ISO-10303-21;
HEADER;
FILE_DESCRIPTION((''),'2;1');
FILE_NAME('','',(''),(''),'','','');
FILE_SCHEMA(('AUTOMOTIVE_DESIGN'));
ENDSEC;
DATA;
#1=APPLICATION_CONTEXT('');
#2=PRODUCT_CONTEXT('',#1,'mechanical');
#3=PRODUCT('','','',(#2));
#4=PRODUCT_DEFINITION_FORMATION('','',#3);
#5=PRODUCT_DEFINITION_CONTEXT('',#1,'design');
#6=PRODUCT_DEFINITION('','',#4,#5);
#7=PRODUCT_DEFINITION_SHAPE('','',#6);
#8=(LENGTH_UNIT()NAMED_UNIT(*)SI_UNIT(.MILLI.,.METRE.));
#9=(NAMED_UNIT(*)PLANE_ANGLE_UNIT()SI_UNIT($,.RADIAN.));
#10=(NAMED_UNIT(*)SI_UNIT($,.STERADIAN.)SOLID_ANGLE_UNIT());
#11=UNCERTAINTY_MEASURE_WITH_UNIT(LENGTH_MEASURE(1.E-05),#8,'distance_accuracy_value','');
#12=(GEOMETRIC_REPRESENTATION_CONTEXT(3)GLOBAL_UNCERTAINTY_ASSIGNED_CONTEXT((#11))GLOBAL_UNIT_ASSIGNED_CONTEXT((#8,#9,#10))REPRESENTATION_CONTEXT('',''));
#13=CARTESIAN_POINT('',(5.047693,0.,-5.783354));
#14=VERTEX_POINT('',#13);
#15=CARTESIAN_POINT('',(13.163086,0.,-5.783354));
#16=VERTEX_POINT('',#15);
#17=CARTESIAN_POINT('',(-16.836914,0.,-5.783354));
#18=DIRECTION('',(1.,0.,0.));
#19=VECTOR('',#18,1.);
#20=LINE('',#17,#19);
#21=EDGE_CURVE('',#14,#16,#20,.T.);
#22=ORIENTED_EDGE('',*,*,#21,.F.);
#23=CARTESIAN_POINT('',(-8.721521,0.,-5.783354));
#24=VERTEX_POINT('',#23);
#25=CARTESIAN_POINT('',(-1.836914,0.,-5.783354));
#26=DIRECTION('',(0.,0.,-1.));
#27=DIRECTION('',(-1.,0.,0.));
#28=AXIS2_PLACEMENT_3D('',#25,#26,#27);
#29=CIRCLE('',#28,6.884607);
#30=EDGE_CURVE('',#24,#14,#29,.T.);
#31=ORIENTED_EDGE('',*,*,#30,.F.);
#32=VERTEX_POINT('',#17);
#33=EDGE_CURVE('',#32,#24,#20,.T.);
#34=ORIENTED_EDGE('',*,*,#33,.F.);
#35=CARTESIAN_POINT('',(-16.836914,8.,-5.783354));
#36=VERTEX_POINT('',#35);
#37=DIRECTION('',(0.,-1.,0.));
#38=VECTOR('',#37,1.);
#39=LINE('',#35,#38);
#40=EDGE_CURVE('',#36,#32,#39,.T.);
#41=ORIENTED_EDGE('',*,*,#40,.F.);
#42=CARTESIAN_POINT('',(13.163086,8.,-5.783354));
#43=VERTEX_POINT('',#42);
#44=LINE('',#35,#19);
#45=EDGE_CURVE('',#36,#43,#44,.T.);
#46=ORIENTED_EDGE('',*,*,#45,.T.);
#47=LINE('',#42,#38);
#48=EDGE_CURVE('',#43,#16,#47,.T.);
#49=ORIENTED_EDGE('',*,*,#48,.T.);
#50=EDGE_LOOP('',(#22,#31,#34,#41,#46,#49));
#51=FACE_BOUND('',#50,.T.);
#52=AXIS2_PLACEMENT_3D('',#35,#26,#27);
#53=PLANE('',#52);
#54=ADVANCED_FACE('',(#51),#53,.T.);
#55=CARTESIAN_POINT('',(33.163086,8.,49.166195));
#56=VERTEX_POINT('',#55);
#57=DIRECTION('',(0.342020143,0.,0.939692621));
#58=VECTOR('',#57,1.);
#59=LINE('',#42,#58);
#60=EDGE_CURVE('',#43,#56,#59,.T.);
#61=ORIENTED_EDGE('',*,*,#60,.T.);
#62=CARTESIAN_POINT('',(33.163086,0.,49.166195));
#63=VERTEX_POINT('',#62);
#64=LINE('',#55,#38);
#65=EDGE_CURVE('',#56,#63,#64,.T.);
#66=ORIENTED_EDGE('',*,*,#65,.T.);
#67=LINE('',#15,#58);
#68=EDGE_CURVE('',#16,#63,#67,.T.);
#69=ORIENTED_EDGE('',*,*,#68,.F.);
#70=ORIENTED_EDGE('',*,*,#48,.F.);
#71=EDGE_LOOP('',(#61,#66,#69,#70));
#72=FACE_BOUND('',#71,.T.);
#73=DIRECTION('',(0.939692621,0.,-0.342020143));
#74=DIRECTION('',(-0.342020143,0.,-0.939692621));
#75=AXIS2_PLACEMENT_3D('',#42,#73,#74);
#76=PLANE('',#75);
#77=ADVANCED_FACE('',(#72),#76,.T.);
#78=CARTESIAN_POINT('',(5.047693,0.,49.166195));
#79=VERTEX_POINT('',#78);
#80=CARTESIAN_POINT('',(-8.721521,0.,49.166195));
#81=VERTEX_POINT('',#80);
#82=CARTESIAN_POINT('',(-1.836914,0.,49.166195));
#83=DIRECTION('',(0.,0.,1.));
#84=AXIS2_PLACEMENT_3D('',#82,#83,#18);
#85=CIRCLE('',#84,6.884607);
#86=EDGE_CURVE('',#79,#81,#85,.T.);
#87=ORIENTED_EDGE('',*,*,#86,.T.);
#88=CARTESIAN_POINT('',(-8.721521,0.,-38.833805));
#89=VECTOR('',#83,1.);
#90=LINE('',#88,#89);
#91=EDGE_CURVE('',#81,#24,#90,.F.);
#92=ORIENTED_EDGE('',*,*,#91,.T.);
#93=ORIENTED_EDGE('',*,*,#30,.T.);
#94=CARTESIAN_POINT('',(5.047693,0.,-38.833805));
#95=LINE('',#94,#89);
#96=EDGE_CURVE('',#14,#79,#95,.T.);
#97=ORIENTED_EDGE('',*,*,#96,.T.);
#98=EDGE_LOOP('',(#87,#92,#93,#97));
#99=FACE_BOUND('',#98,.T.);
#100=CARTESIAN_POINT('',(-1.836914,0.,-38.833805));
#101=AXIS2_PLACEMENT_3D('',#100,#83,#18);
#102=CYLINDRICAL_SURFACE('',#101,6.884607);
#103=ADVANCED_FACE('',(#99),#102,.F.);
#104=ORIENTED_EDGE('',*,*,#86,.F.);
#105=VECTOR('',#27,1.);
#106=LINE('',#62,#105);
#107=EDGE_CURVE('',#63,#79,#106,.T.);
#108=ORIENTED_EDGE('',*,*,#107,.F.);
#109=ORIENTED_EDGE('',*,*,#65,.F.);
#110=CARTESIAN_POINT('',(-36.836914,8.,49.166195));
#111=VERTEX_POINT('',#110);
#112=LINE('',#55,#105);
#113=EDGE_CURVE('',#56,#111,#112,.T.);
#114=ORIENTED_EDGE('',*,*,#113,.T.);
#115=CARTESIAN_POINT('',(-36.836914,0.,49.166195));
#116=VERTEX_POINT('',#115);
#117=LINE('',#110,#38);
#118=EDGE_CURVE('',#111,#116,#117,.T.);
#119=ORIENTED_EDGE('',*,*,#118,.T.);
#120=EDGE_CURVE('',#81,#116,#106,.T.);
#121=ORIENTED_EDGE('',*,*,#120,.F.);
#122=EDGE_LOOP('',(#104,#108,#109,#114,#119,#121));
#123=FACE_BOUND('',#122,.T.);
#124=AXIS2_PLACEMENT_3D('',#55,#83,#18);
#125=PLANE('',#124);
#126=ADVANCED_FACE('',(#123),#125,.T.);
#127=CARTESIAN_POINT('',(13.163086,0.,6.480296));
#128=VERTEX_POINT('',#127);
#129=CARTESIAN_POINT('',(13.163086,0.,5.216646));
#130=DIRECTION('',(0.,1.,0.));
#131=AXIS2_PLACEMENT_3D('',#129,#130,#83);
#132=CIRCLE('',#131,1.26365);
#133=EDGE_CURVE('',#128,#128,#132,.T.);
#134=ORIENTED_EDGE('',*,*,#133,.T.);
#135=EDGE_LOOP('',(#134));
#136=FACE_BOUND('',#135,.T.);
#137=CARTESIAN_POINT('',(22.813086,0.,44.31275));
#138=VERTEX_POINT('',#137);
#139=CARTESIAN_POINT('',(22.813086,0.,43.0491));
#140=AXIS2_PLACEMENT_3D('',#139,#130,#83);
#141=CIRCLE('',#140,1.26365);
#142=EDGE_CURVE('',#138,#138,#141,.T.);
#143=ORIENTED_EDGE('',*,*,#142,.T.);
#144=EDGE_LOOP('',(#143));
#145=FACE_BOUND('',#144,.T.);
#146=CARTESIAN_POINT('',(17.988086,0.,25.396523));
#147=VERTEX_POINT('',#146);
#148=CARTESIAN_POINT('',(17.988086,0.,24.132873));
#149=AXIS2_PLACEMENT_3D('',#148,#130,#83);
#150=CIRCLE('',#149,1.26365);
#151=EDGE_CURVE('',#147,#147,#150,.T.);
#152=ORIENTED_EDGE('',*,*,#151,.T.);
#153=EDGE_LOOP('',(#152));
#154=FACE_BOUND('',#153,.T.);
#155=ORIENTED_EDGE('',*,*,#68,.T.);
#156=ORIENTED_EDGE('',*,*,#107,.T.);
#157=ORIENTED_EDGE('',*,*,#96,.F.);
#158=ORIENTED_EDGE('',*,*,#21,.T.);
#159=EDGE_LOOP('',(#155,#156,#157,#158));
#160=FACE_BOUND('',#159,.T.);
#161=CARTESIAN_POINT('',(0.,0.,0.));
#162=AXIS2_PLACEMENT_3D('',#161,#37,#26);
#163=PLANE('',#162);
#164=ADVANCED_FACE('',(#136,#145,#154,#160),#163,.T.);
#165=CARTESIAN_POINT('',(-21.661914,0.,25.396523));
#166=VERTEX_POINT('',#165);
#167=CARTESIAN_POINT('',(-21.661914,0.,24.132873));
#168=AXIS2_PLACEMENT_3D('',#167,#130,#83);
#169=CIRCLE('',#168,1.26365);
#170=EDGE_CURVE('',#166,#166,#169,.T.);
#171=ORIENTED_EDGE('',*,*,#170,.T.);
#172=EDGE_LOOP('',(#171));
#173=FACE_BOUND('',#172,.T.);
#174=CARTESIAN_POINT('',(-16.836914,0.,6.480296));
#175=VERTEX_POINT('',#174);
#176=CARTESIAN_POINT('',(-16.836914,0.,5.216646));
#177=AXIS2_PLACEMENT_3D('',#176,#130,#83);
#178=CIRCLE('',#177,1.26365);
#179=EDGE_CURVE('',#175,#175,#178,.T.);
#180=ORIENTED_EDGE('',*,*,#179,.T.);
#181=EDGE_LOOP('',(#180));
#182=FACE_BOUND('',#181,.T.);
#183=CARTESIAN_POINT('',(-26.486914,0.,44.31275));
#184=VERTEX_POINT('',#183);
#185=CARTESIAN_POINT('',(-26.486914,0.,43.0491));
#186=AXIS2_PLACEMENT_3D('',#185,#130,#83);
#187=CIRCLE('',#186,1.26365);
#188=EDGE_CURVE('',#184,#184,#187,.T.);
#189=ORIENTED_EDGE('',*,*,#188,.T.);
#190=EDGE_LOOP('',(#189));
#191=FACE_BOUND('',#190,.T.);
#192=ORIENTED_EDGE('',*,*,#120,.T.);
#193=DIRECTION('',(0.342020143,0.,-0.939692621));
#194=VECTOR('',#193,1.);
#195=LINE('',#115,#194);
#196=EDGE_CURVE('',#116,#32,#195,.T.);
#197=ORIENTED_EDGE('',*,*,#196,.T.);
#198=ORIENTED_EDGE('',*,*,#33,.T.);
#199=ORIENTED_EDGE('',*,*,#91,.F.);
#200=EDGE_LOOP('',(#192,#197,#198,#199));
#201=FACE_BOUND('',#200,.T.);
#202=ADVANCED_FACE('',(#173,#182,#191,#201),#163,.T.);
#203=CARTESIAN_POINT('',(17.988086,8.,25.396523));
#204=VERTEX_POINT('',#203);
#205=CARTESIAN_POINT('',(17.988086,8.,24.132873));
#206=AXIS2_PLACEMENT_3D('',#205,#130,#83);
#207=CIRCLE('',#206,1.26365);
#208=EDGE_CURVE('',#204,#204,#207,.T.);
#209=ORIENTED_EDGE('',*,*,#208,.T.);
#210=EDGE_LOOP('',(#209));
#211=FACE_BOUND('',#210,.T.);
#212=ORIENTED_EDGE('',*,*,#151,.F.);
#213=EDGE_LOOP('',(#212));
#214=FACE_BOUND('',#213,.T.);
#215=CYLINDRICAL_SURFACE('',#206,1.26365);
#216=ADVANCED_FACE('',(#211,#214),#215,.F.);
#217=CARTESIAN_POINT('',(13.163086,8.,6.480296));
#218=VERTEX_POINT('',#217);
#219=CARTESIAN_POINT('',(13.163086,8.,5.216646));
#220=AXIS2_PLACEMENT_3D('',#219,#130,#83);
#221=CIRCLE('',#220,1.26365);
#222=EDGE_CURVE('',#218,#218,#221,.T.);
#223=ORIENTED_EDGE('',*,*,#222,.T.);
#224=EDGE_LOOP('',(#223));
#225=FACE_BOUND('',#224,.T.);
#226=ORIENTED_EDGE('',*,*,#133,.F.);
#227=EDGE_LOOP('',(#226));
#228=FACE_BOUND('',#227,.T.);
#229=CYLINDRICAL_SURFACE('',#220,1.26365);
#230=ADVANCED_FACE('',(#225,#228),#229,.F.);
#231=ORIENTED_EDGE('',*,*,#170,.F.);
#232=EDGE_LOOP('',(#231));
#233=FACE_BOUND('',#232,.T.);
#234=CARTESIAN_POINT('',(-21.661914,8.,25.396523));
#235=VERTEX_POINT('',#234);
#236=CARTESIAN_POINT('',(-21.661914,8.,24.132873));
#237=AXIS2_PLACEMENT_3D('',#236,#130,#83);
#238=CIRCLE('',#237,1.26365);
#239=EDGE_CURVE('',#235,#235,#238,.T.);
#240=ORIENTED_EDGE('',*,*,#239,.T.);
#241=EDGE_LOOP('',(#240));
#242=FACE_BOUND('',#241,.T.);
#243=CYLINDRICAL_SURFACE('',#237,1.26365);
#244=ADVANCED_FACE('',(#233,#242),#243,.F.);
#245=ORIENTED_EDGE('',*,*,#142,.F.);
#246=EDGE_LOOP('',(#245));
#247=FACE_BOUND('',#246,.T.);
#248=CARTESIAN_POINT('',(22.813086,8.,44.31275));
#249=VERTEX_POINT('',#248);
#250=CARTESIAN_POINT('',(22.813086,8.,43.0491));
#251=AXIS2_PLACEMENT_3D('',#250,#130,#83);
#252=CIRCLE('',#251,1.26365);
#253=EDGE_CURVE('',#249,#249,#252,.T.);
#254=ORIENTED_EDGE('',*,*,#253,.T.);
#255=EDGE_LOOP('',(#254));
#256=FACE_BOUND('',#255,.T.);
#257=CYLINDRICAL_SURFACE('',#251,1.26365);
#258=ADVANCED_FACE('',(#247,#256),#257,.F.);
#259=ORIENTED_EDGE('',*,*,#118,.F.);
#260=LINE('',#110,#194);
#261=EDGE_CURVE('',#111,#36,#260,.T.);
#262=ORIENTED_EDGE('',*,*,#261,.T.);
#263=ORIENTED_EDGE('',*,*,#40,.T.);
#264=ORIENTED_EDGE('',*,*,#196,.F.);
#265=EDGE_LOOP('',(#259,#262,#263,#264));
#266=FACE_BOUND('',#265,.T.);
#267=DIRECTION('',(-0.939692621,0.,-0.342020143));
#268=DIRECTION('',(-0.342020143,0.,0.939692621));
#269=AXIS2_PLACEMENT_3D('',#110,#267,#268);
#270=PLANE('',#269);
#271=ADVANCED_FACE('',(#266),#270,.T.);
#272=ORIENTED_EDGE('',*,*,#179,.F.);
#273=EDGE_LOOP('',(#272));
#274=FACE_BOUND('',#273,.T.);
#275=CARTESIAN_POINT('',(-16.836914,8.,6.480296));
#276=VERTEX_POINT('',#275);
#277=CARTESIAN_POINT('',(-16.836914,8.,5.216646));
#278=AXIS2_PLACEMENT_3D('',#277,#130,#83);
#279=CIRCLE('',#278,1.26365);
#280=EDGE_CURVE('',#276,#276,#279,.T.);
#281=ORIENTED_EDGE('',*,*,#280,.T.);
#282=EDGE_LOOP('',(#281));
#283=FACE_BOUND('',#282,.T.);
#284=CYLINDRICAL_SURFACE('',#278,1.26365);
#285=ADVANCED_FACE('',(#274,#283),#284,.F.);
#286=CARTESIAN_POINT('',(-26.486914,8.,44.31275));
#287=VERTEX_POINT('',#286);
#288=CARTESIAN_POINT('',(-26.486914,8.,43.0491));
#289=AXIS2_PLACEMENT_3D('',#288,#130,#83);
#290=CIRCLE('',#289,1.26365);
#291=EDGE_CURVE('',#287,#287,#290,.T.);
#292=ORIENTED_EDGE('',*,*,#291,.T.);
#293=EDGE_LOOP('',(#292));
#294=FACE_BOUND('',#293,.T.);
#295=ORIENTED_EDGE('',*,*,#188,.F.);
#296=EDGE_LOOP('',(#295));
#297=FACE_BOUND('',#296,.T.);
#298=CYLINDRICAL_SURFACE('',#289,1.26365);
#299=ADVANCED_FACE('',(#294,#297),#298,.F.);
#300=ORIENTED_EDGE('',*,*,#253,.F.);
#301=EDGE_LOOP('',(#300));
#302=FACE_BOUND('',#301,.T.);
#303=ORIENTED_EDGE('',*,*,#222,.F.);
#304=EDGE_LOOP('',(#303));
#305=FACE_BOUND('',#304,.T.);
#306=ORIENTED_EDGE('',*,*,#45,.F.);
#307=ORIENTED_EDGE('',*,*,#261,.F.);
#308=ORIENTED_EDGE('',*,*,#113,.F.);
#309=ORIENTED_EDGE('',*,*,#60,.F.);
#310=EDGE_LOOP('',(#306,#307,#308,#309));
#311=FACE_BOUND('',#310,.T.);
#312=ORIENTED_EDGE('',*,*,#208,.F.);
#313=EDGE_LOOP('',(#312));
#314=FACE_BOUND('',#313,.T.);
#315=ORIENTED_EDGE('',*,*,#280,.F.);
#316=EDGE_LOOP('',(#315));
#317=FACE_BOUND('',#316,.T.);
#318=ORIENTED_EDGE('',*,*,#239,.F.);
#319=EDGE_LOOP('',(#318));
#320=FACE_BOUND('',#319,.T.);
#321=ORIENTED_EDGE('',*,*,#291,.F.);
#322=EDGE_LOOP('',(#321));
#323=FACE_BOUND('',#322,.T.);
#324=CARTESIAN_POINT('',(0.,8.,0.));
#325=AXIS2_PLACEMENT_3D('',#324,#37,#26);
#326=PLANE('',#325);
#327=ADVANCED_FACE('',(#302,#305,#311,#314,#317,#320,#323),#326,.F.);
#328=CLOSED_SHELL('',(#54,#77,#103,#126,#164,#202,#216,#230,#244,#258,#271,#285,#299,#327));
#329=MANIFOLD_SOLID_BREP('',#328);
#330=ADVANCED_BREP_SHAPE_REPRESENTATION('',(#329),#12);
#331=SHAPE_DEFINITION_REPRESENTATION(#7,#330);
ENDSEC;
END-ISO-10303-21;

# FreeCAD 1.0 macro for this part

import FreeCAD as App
import Part
import Sketcher
from FreeCAD import Vector
Q = App.Units.Quantity


def add_polygon(sketch, points):
    """Adds a closed chain of lines whose ends are joined by coincident constraints."""
    first, n = sketch.GeometryCount, len(points)
    for a, b in zip(points, points[1:] + points[:1]):
        sketch.addGeometry(Part.LineSegment(App.Vector(*a, 0), App.Vector(*b, 0)), False)
    for i in range(n):
        sketch.addConstraint(Sketcher.Constraint("Coincident", first + i, 2, first + (i + 1) % n, 1))

doc = App.newDocument("Part")
body = doc.addObject("PartDesign::Body", "Body")

# Sketch on XZ plane
sketch1 = body.newObject("Sketcher::SketchObject", "Sketch")
sketch1.AttachmentSupport = (doc.getObject("XZ_Plane"), [""])
sketch1.MapMode = "FlatFace"
add_polygon(sketch1, [(13, -6), (-17, -6), (-37, 49), (33, 49)])  # lines 0-3
sketch1.addConstraint([
    Sketcher.Constraint("Horizontal", 0),
    Sketcher.Constraint("Horizontal", 2),
    Sketcher.Constraint("Equal", 1, 3),
    Sketcher.Constraint("DistanceX", 0, 2, 0, 1, Q("30 mm")),
    Sketcher.Constraint("DistanceX", 2, 1, 2, 2, Q("70 mm")),
    Sketcher.Constraint("Angle", 1, Q("110 deg")),
    Sketcher.Constraint("DistanceX", 0, 2, -1, 1, Q("16.836914 mm")),
    Sketcher.Constraint("DistanceY", 0, 2, -1, 1, Q("5.783354 mm")),
])
pad1 = body.newObject("PartDesign::Pad", "Pad")
pad1.Profile = sketch1
pad1.Length = 8
pad1.Reversed = True

# Sketch on XY plane
sketch2 = body.newObject("Sketcher::SketchObject", "Sketch001")
sketch2.AttachmentSupport = (doc.getObject("XY_Plane"), [""])
sketch2.MapMode = "FlatFace"
sketch2.AttachmentOffset = App.Placement(Vector(0, 0, 49.166195), App.Rotation())
sketch2.addGeometry(Part.Circle(Vector(-2, 0, 0), Vector(0, 0, 1), 7), False)
sketch2.addConstraint([
    Sketcher.Constraint("PointOnObject", 0, 3, -1),
    Sketcher.Constraint("Diameter", 0, Q("13.769213 mm")),
    Sketcher.Constraint("DistanceX", 0, 3, -1, 1, Q("1.836914 mm")),
])
pocket1 = body.newObject("PartDesign::Pocket", "Pocket")
pocket1.Profile = sketch2
pocket1.Length = 88

# Sketch on XZ plane
sketch3 = body.newObject("Sketcher::SketchObject", "Sketch002")
sketch3.AttachmentSupport = (doc.getObject("XZ_Plane"), [""])
sketch3.MapMode = "FlatFace"
sketch3.AttachmentOffset = App.Placement(Vector(0, 0, -8), App.Rotation())
sketch3.addGeometry([
    Part.Circle(Vector(18, 24.1, 0), Vector(0, 0, 1), 1.3),  # 0
    Part.Circle(Vector(22.8, 43, 0), Vector(0, 0, 1), 1.3),  # 1
    Part.Circle(Vector(-26.5, 43, 0), Vector(0, 0, 1), 1.3),  # 2
    Part.Circle(Vector(-16.8, 5.2, 0), Vector(0, 0, 1), 1.3),  # 3
    Part.Circle(Vector(13.2, 5.2, 0), Vector(0, 0, 1), 1.3),  # 4
    Part.Circle(Vector(-21.7, 24.1, 0), Vector(0, 0, 1), 1.3),  # 5
], False)
sketch3.addConstraint([
    Sketcher.Constraint("Equal", 0, 1),
    Sketcher.Constraint("Equal", 1, 2),
    Sketcher.Constraint("Equal", 2, 3),
    Sketcher.Constraint("Equal", 3, 4),
    Sketcher.Constraint("Equal", 4, 5),
    Sketcher.Constraint("Horizontal", 1, 3, 2, 3),
    Sketcher.Constraint("Horizontal", 3, 3, 4, 3),
    Sketcher.Constraint("Horizontal", 0, 3, 5, 3),
    Sketcher.Constraint("DistanceX", 3, 3, 4, 3, Q("30 mm")),
    Sketcher.Constraint("Diameter", 0, Q("2.5273 mm")),
    Sketcher.Constraint("DistanceX", 2, 3, 1, 3, Q("49.3 mm")),
    Sketcher.Constraint("DistanceX", 2, 3, 3, 3, Q("9.65 mm")),
    Sketcher.Constraint("DistanceX", 5, 3, 0, 3, Q("39.65 mm")),
    Sketcher.Constraint("DistanceX", 0, 3, 1, 3, Q("4.825 mm")),
    Sketcher.Constraint("DistanceY", -1, 1, 1, 3, Q("43.0491 mm")),
    Sketcher.Constraint("DistanceX", -1, 1, 0, 3, Q("17.988086 mm")),
    Sketcher.Constraint("DistanceY", -1, 1, 0, 3, Q("24.132873 mm")),
    Sketcher.Constraint("DistanceY", -1, 1, 3, 3, Q("5.216646 mm")),
])
doc.recompute()
hole = body.newObject("PartDesign::Hole", "Hole")
hole.Profile = sketch3
hole.ThreadType = "None"
hole.Diameter = 2.5273
hole.DepthType = "ThroughAll"
hole.Reversed = True

# Sketch on XZ plane
sketch4 = body.newObject("Sketcher::SketchObject", "Sketch003")
sketch4.AttachmentSupport = (doc.getObject("XZ_Plane"), [""])
sketch4.MapMode = "FlatFace"
sketch4.addGeometry([
    Part.Circle(Vector(-16.8, 5.2, 0), Vector(0, 0, 1), 1.3),
    Part.Circle(Vector(13.2, 5.2, 0), Vector(0, 0, 1), 1.3),
    Part.Circle(Vector(22.8, 43, 0), Vector(0, 0, 1), 1.3),
    Part.Circle(Vector(-26.5, 43, 0), Vector(0, 0, 1), 1.3),
], False)
sketch4.addConstraint([
    Sketcher.Constraint("Equal", 0, 1),
    Sketcher.Constraint("Equal", 1, 2),
    Sketcher.Constraint("Equal", 2, 3),
    Sketcher.Constraint("Horizontal", 0, 3, 1, 3),
    Sketcher.Constraint("Horizontal", 2, 3, 3, 3),
    Sketcher.Constraint("DistanceX", 0, 3, 1, 3, Q("30 mm")),
    Sketcher.Constraint("Diameter", 0, Q("2.5273 mm")),
    Sketcher.Constraint("DistanceX", 3, 3, 2, 3, Q("49.3 mm")),
    Sketcher.Constraint("DistanceX", 1, 3, 2, 3, Q("9.65 mm")),
    Sketcher.Constraint("DistanceY", -1, 1, 2, 3, Q("43.0491 mm")),
    Sketcher.Constraint("DistanceX", 0, 3, -1, 1, Q("16.836914 mm")),
    Sketcher.Constraint("DistanceY", -1, 1, 0, 3, Q("5.216646 mm")),
])
doc.recompute()
hole2 = body.newObject("PartDesign::Hole", "Hole001")
hole2.Profile = sketch4
hole2.ThreadType = "None"
hole2.Diameter = 2.5273
hole2.DepthType = "ThroughAll"

doc.recompute()
